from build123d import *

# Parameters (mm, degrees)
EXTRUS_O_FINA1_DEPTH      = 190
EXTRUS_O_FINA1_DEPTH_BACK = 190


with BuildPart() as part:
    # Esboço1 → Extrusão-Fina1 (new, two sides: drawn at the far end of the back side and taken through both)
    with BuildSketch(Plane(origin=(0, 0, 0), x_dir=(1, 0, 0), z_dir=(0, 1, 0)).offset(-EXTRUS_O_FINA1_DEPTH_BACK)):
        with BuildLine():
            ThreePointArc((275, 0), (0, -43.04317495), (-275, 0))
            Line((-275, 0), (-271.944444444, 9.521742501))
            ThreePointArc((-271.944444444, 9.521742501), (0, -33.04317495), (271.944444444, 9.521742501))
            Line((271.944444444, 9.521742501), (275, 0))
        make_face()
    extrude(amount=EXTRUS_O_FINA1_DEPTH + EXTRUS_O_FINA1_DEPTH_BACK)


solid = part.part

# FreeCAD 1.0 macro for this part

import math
import FreeCAD as App
import Part
import Sketcher

V = App.Vector
Q = App.Units.Quantity

doc = App.newDocument("Part")
params = doc.addObject("Spreadsheet::Sheet", "Params")
for row, (alias, value) in enumerate([
    ("sketch1_radius", "900 mm"),
    ("sketch1_radius2", "890 mm"),
    ("pad1_length", "190 mm"),
    ("pad1_length2", "190 mm"),
], start=1):
    params.set(f"A{row}", alias)
    params.set(f"B{row}", "=" + value)
    params.setAlias(f"B{row}", alias)

body = doc.addObject("PartDesign::Body", "Body")

sketch1 = body.newObject("Sketcher::SketchObject", "Sketch")
sketch1.AttachmentSupport = (doc.getObject("XZ_Plane"), [""])
sketch1.MapMode = "FlatFace"
sketch1.addGeometry([
    Part.ArcOfCircle(Part.Circle(V(0, -856.956825, 0), V(0, 0, 1), 900), math.radians(72.208409), math.radians(107.791591)),
    Part.LineSegment(V(275, 0, 0), V(271.944444, -9.521743, 0)),
    Part.ArcOfCircle(Part.Circle(V(0, -856.956825, 0), V(0, 0, 1), 890), math.radians(72.208409), math.radians(107.791591)),
    Part.LineSegment(V(-271.944444, -9.521743, 0), V(-275, 0, 0)),
], False)
sketch1.addConstraint([
    Sketcher.Constraint("Coincident", 0, 1, 1, 1),
    Sketcher.Constraint("Coincident", 1, 2, 2, 1),
    Sketcher.Constraint("Coincident", 2, 2, 3, 1),
    Sketcher.Constraint("Coincident", 3, 2, 0, 2),
    Sketcher.Constraint("Coincident", 2, 3, 0, 3),
    Sketcher.Constraint("PointOnObject", 0, 3, -2),
    Sketcher.Constraint("PointOnObject", 0, 1, -1),
    Sketcher.Constraint("PointOnObject", 3, 2, -1),
    Sketcher.Constraint("Radius", 0, 900.0),
    Sketcher.Constraint("Radius", 2, 890.0),
    Sketcher.Constraint("DistanceX", 3, 2, -1, 1, 275.0),
    Sketcher.Constraint("DistanceX", -1, 1, 1, 2, 271.944444),
    Sketcher.Constraint("Angle", 3, Q("107.791591 deg")),
])
sketch1.setExpression("Constraints[8]", "Params.sketch1_radius")
sketch1.setExpression("Constraints[9]", "Params.sketch1_radius2")
pad1 = body.newObject("PartDesign::Pad", "Pad")
pad1.Profile = sketch1
pad1.Type = "TwoLengths"
pad1.setExpression("Length", "Params.pad1_length")
pad1.setExpression("Length2", "Params.pad1_length2")
pad1.Reversed = True

doc.recompute()
